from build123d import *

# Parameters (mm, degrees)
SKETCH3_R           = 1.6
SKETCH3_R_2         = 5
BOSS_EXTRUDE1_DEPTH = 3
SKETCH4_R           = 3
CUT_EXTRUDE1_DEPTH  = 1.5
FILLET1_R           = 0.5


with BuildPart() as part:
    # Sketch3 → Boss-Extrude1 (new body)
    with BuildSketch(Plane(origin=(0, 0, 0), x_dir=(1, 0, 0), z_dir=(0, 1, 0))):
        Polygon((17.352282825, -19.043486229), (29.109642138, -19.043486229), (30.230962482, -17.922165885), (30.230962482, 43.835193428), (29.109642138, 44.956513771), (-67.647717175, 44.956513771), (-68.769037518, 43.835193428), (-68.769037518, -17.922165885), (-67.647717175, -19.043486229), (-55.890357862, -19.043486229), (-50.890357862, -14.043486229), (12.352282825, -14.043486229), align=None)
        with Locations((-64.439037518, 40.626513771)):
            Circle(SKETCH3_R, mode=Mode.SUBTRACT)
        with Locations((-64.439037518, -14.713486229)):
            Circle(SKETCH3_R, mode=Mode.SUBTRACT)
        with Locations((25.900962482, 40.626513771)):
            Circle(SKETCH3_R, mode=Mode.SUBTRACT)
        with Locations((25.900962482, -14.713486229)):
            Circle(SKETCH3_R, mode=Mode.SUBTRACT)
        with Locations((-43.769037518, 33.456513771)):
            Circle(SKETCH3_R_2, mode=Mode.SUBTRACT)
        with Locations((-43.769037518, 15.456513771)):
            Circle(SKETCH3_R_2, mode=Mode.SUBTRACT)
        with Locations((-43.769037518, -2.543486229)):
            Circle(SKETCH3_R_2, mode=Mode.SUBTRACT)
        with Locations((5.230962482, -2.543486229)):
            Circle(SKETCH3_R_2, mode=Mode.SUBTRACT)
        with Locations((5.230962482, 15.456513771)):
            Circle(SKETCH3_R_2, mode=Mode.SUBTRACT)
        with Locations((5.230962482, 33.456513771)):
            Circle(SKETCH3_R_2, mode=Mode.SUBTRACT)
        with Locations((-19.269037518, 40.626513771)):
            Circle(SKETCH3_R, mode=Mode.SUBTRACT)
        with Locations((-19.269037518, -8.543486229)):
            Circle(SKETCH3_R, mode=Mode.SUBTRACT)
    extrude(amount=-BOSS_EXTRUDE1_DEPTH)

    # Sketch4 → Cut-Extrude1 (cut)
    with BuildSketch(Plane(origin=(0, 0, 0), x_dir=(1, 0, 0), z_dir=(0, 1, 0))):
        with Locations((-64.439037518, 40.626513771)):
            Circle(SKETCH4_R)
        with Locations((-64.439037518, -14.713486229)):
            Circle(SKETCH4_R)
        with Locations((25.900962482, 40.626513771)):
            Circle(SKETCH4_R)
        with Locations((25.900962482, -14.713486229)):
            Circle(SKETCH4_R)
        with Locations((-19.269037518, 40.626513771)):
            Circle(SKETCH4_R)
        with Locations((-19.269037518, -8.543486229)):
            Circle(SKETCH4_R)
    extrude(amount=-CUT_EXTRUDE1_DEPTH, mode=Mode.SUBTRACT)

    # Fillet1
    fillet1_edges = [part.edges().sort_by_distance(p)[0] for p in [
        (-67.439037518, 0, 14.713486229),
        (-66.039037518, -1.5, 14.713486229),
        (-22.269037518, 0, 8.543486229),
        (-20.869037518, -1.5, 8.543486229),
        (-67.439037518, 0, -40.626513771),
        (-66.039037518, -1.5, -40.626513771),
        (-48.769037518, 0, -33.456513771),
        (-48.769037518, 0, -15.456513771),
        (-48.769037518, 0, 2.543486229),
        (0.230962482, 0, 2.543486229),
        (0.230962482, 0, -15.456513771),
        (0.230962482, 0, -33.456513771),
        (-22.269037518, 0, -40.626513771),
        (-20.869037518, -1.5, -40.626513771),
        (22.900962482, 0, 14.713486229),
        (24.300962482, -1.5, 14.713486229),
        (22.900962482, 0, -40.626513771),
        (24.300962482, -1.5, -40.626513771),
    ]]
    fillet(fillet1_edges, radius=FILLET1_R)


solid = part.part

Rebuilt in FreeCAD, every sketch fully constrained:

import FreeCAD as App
import Part
import Sketcher

V = App.Vector


def edges_at(feature, points):
    """Names of the edges that pass closest to the given points."""
    edges = feature.Shape.Edges
    near = lambda p: min(range(len(edges)), key=lambda i: edges[i].distToShape(Part.Vertex(*p))[0])
    return sorted({f"Edge{near(p) + 1}" for p in points})


def add_polygon(sketch, points):
    """Adds a closed chain of lines whose ends are joined by coincident constraints."""
    first, n = sketch.GeometryCount, len(points)
    for a, b in zip(points, points[1:] + points[:1]):
        sketch.addGeometry(Part.LineSegment(App.Vector(*a, 0), App.Vector(*b, 0)), False)
    for i in range(n):
        sketch.addConstraint(Sketcher.Constraint("Coincident", first + i, 2, first + (i + 1) % n, 1))

doc = App.newDocument("Part")
body = doc.addObject("PartDesign::Body", "Body")

# Sketch on XZ plane
sketch1 = body.newObject("Sketcher::SketchObject", "Sketch")
sketch1.AttachmentSupport = (doc.getObject("XZ_Plane"), [""])
sketch1.MapMode = "FlatFace"
add_polygon(sketch1, [(17.4, 19), (29.1, 19), (30.2, 17.9), (30.2, -43.8), (29.1, -45), (-67.6, -45), (-68.8, -43.8), (-68.8, 17.9), (-67.6, 19), (-55.9, 19), (-50.9, 14), (12.4, 14)])  # lines 0-11
sketch1.addGeometry(Part.Circle(V(-64.4, 14.7, 0), V(0, 0, 1), 1.6), False)  # 12
sketch1.addGeometry(Part.Circle(V(-43.8, 2.5, 0), V(0, 0, 1), 5), False)  # 13
sketch1.addGeometry(Part.Circle(V(-19.3, 8.5, 0), V(0, 0, 1), 1.6), False)  # 14
sketch1.addGeometry(Part.Circle(V(25.9, 14.7, 0), V(0, 0, 1), 1.6), False)  # 15
sketch1.addGeometry(Part.Circle(V(5.2, 2.5, 0), V(0, 0, 1), 5), False)  # 16
sketch1.addGeometry(Part.Circle(V(-43.8, -15.5, 0), V(0, 0, 1), 5), False)  # 17
sketch1.addGeometry(Part.Circle(V(-43.8, -33.5, 0), V(0, 0, 1), 5), False)  # 18
sketch1.addGeometry(Part.Circle(V(-64.4, -40.6, 0), V(0, 0, 1), 1.6), False)  # 19
sketch1.addGeometry(Part.Circle(V(5.2, -15.5, 0), V(0, 0, 1), 5), False)  # 20
sketch1.addGeometry(Part.Circle(V(-19.3, -40.6, 0), V(0, 0, 1), 1.6), False)  # 21
sketch1.addGeometry(Part.Circle(V(5.2, -33.5, 0), V(0, 0, 1), 5), False)  # 22
sketch1.addGeometry(Part.Circle(V(25.9, -40.6, 0), V(0, 0, 1), 1.6), False)  # 23
sketch1.addConstraint([
    Sketcher.Constraint("Horizontal", 0),
    Sketcher.Constraint("Vertical", 2),
    Sketcher.Constraint("Horizontal", 4),
    Sketcher.Constraint("Vertical", 6),
    Sketcher.Constraint("Horizontal", 8),
    Sketcher.Constraint("Horizontal", 10),
    Sketcher.Constraint("Equal", 12, 14),
    Sketcher.Constraint("Equal", 14, 15),
    Sketcher.Constraint("Equal", 13, 16),
    Sketcher.Constraint("Equal", 16, 17),
    Sketcher.Constraint("Equal", 17, 18),
    Sketcher.Constraint("Equal", 15, 19),
    Sketcher.Constraint("Equal", 18, 20),
    Sketcher.Constraint("Equal", 19, 21),
    Sketcher.Constraint("Equal", 20, 22),
    Sketcher.Constraint("Equal", 21, 23),
    Sketcher.Constraint("Perpendicular", 1, 3),
    Sketcher.Constraint("Perpendicular", 3, 5),
    Sketcher.Constraint("Perpendicular", 5, 7),
    Sketcher.Constraint("Perpendicular", 7, 9),
    Sketcher.Constraint("Perpendicular", 9, 11),
    Sketcher.Constraint("Horizontal", 12, 3, 15, 3),
    Sketcher.Constraint("Horizontal", 13, 3, 16, 3),
    Sketcher.Constraint("Horizontal", 17, 3, 20, 3),
    Sketcher.Constraint("Horizontal", 19, 3, 21, 3),
    Sketcher.Constraint("Horizontal", 18, 3, 22, 3),
    Sketcher.Constraint("Horizontal", 21, 3, 23, 3),
    Sketcher.Constraint("Horizontal", 2, 2, 5, 2),
    Sketcher.Constraint("Horizontal", 1, 2, 6, 2),
    Sketcher.Constraint("Horizontal", 0, 2, 7, 2),
    Sketcher.Constraint("Vertical", 13, 3, 17, 3),
    Sketcher.Constraint("Vertical", 17, 3, 18, 3),
    Sketcher.Constraint("Vertical", 12, 3, 19, 3),
    Sketcher.Constraint("Vertical", 16, 3, 20, 3),
    Sketcher.Constraint("Vertical", 14, 3, 21, 3),
    Sketcher.Constraint("Vertical", 20, 3, 22, 3),
    Sketcher.Constraint("Vertical", 15, 3, 23, 3),
    Sketcher.Constraint("Vertical", 0, 2, 3, 2),
    Sketcher.Constraint("Vertical", 4, 2, 7, 2),
    Sketcher.Constraint("Equal", 0, 8),
    Sketcher.Constraint("Diameter", 13, 10.0),
    Sketcher.Constraint("Diameter", 12, 3.2),
    Sketcher.Constraint("DistanceY", 13, 3, 14, 3, 6.0),
    Sketcher.Constraint("DistanceX", 13, 3, 16, 3, 49.0),
    Sketcher.Constraint("DistanceY", 17, 3, 13, 3, 18.0),
    Sketcher.Constraint("DistanceY", 18, 3, 17, 3, 18.0),
    Sketcher.Constraint("DistanceX", 16, 3, 1, 2, 25.0),
    Sketcher.Constraint("DistanceX", 5, 2, 18, 3, 25.0),
    Sketcher.Constraint("DistanceX", 8, 2, 9, 2, 5.0),
    Sketcher.Constraint("DistanceX", 13, 3, 14, 3, 24.5),
    Sketcher.Constraint("DistanceY", 16, 3, 0, 2, 16.5),
    Sketcher.Constraint("DistanceY", 3, 2, 22, 3, 11.5),
    Sketcher.Constraint("DistanceX", 12, 3, 13, 3, 20.67),
    Sketcher.Constraint("DistanceY", 13, 3, 12, 3, 12.17),
    Sketcher.Constraint("DistanceX", 14, 3, 15, 3, 45.17),
    Sketcher.Constraint("DistanceY", 19, 3, 18, 3, 7.17),
    Sketcher.Constraint("DistanceX", 0, 1, 0, 2, 11.757359),
    Sketcher.Constraint("DistanceX", 4, 2, 4, 1, 96.757359),
    Sketcher.Constraint("DistanceX", 12, 3, -1, 1, 64.439038),
    Sketcher.Constraint("DistanceY", -1, 1, 12, 3, 14.713486),
])
pad1 = body.newObject("PartDesign::Pad", "Pad")
pad1.Profile = sketch1
pad1.Length = 3

# Sketch on XZ plane
sketch2 = body.newObject("Sketcher::SketchObject", "Sketch001")
sketch2.AttachmentSupport = (doc.getObject("XZ_Plane"), [""])
sketch2.MapMode = "FlatFace"
sketch2.addGeometry([
    Part.Circle(V(-64.4, -40.6, 0), V(0, 0, 1), 3),  # 0
    Part.Circle(V(-64.4, 14.7, 0), V(0, 0, 1), 3),  # 1
    Part.Circle(V(25.9, -40.6, 0), V(0, 0, 1), 3),  # 2
    Part.Circle(V(25.9, 14.7, 0), V(0, 0, 1), 3),  # 3
    Part.Circle(V(-19.3, -40.6, 0), V(0, 0, 1), 3),  # 4
    Part.Circle(V(-19.3, 8.5, 0), V(0, 0, 1), 3),  # 5
], False)
sketch2.addConstraint([
    Sketcher.Constraint("Equal", 0, 1),
    Sketcher.Constraint("Equal", 1, 2),
    Sketcher.Constraint("Equal", 2, 3),
    Sketcher.Constraint("Equal", 3, 4),
    Sketcher.Constraint("Equal", 4, 5),
    Sketcher.Constraint("Horizontal", 0, 3, 2, 3),
    Sketcher.Constraint("Horizontal", 1, 3, 3, 3),
    Sketcher.Constraint("Horizontal", 2, 3, 4, 3),
    Sketcher.Constraint("Vertical", 0, 3, 1, 3),
    Sketcher.Constraint("Vertical", 2, 3, 3, 3),
    Sketcher.Constraint("Vertical", 4, 3, 5, 3),
    Sketcher.Constraint("Diameter", 0, 6.0),
    Sketcher.Constraint("DistanceY", 0, 3, 1, 3, 55.34),
    Sketcher.Constraint("DistanceX", 0, 3, 2, 3, 90.34),
    Sketcher.Constraint("DistanceX", 0, 3, 4, 3, 45.17),
    Sketcher.Constraint("DistanceY", 5, 3, 1, 3, 6.17),
    Sketcher.Constraint("DistanceX", 0, 3, -1, 1, 64.439038),
    Sketcher.Constraint("DistanceY", 0, 3, -1, 1, 40.626514),
])
pocket1 = body.newObject("PartDesign::Pocket", "Pocket")
pocket1.Profile = sketch2
pocket1.Length = 1.5
pocket1.Reversed = True
doc.recompute()

fillet = body.newObject("PartDesign::Fillet", "Fillet")
fillet.Base = (pocket1, edges_at(pocket1, [
    (-67.439, 0, 14.713),
    (-66.039, -1.5, 14.713),
    (-22.269, 0, 8.543),
    (-20.869, -1.5, 8.543),
    (-67.439, 0, -40.627),
    (-66.039, -1.5, -40.627),
    (-48.769, 0, -33.457),
    (-48.769, 0, -15.457),
    (-48.769, 0, 2.543),
    (0.231, 0, 2.543),
    (0.231, 0, -15.457),
    (0.231, 0, -33.457),
    (-22.269, 0, -40.627),
    (-20.869, -1.5, -40.627),
    (22.901, 0, 14.713),
    (24.301, -1.5, 14.713),
    (22.901, 0, -40.627),
    (24.301, -1.5, -40.627),
]))
fillet.Radius = 0.5

doc.recompute()
